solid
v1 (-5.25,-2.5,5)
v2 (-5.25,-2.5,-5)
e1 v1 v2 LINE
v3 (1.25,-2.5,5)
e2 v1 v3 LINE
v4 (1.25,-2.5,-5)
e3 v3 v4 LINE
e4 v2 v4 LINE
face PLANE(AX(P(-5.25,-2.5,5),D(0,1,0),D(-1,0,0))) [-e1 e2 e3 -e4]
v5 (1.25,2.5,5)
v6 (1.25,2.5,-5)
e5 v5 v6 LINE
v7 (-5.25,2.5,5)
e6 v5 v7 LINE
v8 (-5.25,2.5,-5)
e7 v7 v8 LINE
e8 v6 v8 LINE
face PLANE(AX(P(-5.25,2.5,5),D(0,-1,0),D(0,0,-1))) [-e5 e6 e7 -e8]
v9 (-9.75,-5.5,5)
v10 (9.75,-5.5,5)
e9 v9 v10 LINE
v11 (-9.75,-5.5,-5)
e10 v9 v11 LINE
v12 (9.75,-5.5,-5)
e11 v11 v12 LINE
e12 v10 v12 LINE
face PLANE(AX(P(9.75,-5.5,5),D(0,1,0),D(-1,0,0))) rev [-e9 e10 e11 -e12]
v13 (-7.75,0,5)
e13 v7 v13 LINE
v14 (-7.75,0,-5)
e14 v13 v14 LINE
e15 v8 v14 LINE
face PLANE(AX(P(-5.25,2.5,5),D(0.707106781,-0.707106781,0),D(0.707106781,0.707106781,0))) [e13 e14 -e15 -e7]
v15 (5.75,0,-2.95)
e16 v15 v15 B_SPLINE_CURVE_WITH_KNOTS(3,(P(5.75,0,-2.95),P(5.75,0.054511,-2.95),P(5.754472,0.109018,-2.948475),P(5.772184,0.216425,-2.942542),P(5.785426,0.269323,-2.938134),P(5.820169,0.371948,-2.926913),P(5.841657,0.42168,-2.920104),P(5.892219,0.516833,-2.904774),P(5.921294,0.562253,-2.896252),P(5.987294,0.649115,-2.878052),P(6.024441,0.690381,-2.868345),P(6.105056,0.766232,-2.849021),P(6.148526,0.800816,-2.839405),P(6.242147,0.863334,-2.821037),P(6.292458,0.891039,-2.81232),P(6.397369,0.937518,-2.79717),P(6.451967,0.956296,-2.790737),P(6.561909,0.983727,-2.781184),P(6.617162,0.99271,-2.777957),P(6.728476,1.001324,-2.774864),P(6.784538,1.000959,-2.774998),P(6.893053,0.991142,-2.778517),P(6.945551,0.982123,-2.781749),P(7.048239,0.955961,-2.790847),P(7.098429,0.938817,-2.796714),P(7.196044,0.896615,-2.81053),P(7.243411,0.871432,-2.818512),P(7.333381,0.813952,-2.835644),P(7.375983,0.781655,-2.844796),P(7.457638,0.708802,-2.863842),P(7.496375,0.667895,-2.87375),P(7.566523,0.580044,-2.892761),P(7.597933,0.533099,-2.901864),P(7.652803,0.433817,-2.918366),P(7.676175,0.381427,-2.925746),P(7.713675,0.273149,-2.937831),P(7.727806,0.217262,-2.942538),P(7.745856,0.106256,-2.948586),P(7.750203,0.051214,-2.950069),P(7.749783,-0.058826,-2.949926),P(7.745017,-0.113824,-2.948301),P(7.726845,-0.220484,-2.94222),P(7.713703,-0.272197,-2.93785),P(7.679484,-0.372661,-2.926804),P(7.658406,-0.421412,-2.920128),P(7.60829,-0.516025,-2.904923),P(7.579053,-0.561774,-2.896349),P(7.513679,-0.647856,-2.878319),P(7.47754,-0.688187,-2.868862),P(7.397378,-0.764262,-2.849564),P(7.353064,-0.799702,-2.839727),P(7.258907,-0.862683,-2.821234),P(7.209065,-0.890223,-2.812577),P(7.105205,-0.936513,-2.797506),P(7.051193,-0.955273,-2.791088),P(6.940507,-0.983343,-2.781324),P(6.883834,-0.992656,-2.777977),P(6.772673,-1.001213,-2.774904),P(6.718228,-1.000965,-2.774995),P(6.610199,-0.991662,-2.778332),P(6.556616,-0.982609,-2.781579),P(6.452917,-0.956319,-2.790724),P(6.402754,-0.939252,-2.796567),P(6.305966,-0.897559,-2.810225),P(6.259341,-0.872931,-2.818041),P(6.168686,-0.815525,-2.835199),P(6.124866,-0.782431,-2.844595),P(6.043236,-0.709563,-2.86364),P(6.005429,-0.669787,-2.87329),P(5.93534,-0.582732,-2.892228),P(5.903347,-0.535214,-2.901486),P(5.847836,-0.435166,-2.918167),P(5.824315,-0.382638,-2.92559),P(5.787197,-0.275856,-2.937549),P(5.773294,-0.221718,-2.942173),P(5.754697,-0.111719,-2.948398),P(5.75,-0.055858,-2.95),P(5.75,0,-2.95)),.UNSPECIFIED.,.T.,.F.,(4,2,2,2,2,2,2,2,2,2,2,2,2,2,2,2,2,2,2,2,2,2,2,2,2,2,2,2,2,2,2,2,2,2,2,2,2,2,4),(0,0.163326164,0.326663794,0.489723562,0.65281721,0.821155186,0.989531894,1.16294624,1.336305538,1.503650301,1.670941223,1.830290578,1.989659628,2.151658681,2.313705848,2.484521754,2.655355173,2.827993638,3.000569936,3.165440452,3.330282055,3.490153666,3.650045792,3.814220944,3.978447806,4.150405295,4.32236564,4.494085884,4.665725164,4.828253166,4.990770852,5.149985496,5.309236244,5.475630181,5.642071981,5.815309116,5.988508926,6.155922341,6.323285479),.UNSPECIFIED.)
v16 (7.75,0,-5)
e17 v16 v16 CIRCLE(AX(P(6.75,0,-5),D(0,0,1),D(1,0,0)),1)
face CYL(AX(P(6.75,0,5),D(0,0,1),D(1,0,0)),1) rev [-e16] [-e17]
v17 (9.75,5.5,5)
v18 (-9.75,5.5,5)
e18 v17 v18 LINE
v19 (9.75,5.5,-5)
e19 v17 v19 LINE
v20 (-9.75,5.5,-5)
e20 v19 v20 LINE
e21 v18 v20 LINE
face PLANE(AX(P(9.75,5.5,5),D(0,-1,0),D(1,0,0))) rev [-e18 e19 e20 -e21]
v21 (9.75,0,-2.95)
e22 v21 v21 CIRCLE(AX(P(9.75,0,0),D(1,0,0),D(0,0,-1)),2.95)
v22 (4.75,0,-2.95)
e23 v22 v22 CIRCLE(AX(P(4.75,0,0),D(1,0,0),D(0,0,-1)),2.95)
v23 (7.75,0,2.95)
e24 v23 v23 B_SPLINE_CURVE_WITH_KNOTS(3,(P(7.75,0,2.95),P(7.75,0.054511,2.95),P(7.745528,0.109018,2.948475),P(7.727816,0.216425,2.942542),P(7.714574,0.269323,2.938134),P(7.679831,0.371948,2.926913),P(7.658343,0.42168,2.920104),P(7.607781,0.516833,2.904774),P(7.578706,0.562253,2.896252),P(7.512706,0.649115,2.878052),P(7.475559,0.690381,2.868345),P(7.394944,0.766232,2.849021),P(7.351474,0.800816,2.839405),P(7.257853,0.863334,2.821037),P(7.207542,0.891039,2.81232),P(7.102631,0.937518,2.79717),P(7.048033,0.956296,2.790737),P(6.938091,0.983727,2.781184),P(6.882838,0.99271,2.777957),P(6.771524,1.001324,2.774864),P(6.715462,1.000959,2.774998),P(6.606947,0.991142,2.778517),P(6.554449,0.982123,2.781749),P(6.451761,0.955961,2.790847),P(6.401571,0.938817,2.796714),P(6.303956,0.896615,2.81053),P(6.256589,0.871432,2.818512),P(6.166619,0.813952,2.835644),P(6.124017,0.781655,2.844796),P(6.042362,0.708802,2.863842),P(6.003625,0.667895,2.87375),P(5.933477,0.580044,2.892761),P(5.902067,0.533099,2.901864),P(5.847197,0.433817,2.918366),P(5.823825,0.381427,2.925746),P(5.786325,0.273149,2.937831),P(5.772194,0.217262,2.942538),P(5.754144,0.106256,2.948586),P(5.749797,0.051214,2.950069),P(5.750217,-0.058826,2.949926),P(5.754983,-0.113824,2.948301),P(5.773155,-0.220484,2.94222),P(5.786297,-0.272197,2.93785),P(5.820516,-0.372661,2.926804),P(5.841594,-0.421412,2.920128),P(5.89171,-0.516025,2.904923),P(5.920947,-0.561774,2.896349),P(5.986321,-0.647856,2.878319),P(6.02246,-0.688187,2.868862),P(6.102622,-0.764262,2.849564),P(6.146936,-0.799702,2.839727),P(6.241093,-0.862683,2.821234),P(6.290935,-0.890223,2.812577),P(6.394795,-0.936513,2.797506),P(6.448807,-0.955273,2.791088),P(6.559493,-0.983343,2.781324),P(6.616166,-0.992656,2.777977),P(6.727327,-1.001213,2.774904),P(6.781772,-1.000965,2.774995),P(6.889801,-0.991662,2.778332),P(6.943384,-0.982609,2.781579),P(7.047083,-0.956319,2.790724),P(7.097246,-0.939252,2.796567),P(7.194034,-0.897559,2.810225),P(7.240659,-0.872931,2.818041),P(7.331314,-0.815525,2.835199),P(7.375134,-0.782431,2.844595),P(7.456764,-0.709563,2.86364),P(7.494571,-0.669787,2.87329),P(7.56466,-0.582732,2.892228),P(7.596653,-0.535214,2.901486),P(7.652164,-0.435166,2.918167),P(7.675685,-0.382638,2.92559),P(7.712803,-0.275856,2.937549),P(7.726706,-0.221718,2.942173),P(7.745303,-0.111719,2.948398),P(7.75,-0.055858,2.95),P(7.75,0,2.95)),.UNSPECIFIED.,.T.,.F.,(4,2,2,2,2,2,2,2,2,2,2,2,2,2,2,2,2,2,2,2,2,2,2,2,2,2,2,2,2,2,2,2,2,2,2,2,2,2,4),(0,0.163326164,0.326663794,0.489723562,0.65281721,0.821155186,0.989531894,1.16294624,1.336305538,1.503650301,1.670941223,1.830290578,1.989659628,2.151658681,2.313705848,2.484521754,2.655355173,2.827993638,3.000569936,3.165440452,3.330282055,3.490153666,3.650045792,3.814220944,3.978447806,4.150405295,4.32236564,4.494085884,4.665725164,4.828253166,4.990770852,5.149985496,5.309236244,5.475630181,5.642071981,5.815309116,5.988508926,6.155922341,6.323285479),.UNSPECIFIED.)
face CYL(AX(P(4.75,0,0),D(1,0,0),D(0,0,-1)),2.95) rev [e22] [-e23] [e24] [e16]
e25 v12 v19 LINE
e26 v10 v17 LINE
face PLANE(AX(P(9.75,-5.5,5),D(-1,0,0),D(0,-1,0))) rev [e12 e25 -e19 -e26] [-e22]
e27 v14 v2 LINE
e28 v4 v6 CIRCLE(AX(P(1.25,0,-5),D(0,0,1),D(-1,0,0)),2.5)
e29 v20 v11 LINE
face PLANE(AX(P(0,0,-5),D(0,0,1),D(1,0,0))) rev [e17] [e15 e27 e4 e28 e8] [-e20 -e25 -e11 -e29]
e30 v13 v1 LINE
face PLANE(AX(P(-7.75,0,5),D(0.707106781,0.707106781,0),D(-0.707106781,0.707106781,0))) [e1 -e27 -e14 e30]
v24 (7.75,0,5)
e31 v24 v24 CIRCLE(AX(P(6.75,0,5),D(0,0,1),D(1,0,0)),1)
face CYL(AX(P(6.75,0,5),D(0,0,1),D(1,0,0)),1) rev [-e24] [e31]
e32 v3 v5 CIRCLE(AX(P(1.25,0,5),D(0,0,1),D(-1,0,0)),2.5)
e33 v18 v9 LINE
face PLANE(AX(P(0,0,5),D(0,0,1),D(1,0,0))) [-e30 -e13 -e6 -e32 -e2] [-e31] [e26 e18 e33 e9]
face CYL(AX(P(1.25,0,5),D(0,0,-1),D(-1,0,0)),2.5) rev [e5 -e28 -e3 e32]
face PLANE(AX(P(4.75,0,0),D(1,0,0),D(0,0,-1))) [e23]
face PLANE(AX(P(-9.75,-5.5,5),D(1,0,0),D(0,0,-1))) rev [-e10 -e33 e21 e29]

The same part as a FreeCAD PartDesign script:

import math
import FreeCAD as App
import Part
import Sketcher
Q = App.Units.Quantity


def add_polygon(sketch, points):
    """Adds a closed chain of lines whose ends are joined by coincident constraints."""
    first, n = sketch.GeometryCount, len(points)
    for a, b in zip(points, points[1:] + points[:1]):
        sketch.addGeometry(Part.LineSegment(App.Vector(*a, 0), App.Vector(*b, 0)), False)
    for i in range(n):
        sketch.addConstraint(Sketcher.Constraint("Coincident", first + i, 2, first + (i + 1) % n, 1))

doc = App.newDocument("Part")
body = doc.addObject("PartDesign::Body", "Body")

sketch1 = doc.addObject("Sketcher::SketchObject", "Sketch")
body.addObject(sketch1)
sketch1.AttachmentSupport = (doc.XY_Plane, [""])
sketch1.MapMode = "FlatFace"
add_polygon(sketch1, [(-9.75, 5.5), (-9.75, -5.5), (9.75, -5.5), (9.75, 5.5)])
sketch1.addGeometry(Part.LineSegment(App.Vector(-7.75, 0, 0), App.Vector(-5.25, 2.5, 0)), False)
sketch1.addGeometry(Part.LineSegment(App.Vector(-5.25, 2.5, 0), App.Vector(1.25, 2.5, 0)), False)
sketch1.addGeometry(Part.ArcOfCircle(Part.Circle(App.Vector(1.25, 0, 0), App.Vector(0, 0, 1), 2.5), math.radians(-90), math.radians(90)), False)
sketch1.addGeometry(Part.LineSegment(App.Vector(1.25, -2.5, 0), App.Vector(-5.25, -2.5, 0)), False)
sketch1.addGeometry(Part.LineSegment(App.Vector(-5.25, -2.5, 0), App.Vector(-7.75, 0, 0)), False)
sketch1.addConstraint(Sketcher.Constraint("Coincident", 4, 2, 5, 1))
sketch1.addConstraint(Sketcher.Constraint("Tangent", 5, 2, 6, 2))
sketch1.addConstraint(Sketcher.Constraint("Tangent", 6, 1, 7, 1))
sketch1.addConstraint(Sketcher.Constraint("Coincident", 7, 2, 8, 1))
sketch1.addConstraint(Sketcher.Constraint("Coincident", 8, 2, 4, 1))
sketch1.addConstraint(Sketcher.Constraint("Vertical", 0))
sketch1.addConstraint(Sketcher.Constraint("Horizontal", 1))
sketch1.addConstraint(Sketcher.Constraint("Vertical", 2))
sketch1.addConstraint(Sketcher.Constraint("Horizontal", 3))
sketch1.addConstraint(Sketcher.Constraint("Horizontal", 5))
sketch1.addConstraint(Sketcher.Constraint("Horizontal", 7))
sketch1.addConstraint(Sketcher.Constraint("Symmetric", 0, 2, 2, 2, -1, 1))
sketch1.addConstraint(Sketcher.Constraint("Symmetric", 4, 2, 7, 2, -1))
sketch1.addConstraint(Sketcher.Constraint("PointOnObject", 8, 2, -1))
sketch1.addConstraint(Sketcher.Constraint("Perpendicular", 4, 8))
sketch1.addConstraint(Sketcher.Constraint("Radius", 6, Q("2.5 mm")))
sketch1.addConstraint(Sketcher.Constraint("DistanceY", 0, 2, 0, 1, Q("11 mm")))
sketch1.addConstraint(Sketcher.Constraint("DistanceX", 1, 1, 1, 2, Q("19.5 mm")))
sketch1.addConstraint(Sketcher.Constraint("DistanceX", 5, 1, 5, 2, Q("6.5 mm")))
sketch1.addConstraint(Sketcher.Constraint("DistanceX", 0, 2, 6, 3, Q("11 mm")))
pad1 = doc.addObject("PartDesign::Pad", "Pad")
body.addObject(pad1)
pad1.Profile = sketch1
pad1.Length = 10
pad1.Midplane = True

sketch2 = doc.addObject("Sketcher::SketchObject", "Sketch001")
body.addObject(sketch2)
sketch2.AttachmentSupport = (doc.YZ_Plane, [""])
sketch2.MapMode = "FlatFace"
sketch2.AttachmentOffset = App.Placement(App.Vector(0, 0, 9.75), App.Rotation())
sketch2.addGeometry(Part.Circle(App.Vector(0, 0, 0), App.Vector(0, 0, 1), 2.95), False)
sketch2.addConstraint(Sketcher.Constraint("Coincident", 0, 3, -1, 1))
sketch2.addConstraint(Sketcher.Constraint("Diameter", 0, Q("5.9 mm")))
pocket1 = doc.addObject("PartDesign::Pocket", "Pocket")
body.addObject(pocket1)
pocket1.Profile = sketch2
pocket1.Length = 5

sketch3 = doc.addObject("Sketcher::SketchObject", "Sketch002")
body.addObject(sketch3)
sketch3.AttachmentSupport = (doc.XY_Plane, [""])
sketch3.MapMode = "FlatFace"
sketch3.AttachmentOffset = App.Placement(App.Vector(0, 0, 5), App.Rotation())
sketch3.addGeometry(Part.Circle(App.Vector(6.75, 0, 0), App.Vector(0, 0, 1), 1), False)
sketch3.addConstraint(Sketcher.Constraint("PointOnObject", 0, 3, -1))
sketch3.addConstraint(Sketcher.Constraint("Diameter", 0, Q("2 mm")))
sketch3.addConstraint(Sketcher.Constraint("DistanceX", -1, 1, 0, 3, Q("6.75 mm")))
doc.recompute()
hole = doc.addObject("PartDesign::Hole", "Hole")
body.addObject(hole)
hole.Profile = sketch3
hole.ThreadType = "None"
hole.Diameter = 2
hole.DepthType = "ThroughAll"

doc.recompute()
